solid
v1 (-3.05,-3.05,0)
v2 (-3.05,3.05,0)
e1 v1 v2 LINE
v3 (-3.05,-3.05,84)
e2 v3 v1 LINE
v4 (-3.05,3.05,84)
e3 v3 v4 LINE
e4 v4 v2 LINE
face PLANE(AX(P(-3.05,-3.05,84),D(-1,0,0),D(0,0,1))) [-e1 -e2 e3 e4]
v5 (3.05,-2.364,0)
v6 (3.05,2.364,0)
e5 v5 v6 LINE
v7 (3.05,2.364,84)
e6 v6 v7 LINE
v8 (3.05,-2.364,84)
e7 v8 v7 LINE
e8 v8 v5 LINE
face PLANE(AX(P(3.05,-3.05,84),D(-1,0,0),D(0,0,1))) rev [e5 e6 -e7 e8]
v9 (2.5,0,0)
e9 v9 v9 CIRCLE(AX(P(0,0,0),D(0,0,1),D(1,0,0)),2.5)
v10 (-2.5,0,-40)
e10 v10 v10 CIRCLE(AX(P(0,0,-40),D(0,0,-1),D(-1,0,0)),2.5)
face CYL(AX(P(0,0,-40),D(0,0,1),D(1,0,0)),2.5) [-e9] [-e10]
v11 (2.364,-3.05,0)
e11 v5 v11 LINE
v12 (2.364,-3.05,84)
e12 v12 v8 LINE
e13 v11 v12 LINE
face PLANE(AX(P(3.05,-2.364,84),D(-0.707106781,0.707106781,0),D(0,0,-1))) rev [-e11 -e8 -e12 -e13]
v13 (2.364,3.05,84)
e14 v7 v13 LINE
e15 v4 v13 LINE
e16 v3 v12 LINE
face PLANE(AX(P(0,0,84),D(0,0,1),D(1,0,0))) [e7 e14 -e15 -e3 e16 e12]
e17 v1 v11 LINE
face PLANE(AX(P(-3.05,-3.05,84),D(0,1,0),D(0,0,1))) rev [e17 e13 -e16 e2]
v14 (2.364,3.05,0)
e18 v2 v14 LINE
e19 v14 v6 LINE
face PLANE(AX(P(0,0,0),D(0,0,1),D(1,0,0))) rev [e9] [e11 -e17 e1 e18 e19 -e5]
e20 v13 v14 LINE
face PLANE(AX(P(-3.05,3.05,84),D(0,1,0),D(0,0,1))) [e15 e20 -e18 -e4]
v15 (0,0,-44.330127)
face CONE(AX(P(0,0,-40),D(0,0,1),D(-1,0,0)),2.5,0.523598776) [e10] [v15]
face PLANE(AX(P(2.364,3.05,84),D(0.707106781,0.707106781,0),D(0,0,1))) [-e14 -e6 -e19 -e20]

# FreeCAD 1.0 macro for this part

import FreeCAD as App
import Part
import Sketcher
from FreeCAD import Vector
Q = App.Units.Quantity


def edges_at(feature, points):
    """Names of the edges that pass closest to the given points."""
    edges = feature.Shape.Edges
    near = lambda p: min(range(len(edges)), key=lambda i: edges[i].distToShape(Part.Vertex(*p))[0])
    return sorted({f"Edge{near(p) + 1}" for p in points})

doc = App.newDocument("Part")
body = doc.addObject("PartDesign::Body", "Body")

# Sketch on XY plane
sketch1 = body.newObject("Sketcher::SketchObject", "Sketch")
sketch1.AttachmentSupport = (doc.getObject("XY_Plane"), [""])
sketch1.MapMode = "FlatFace"
sketch1.addGeometry([
    Part.LineSegment(Vector(-3.05, 3.05, 0), Vector(-3.05, -3.05, 0)),
    Part.LineSegment(Vector(-3.05, -3.05, 0), Vector(3.05, -3.05, 0)),
    Part.LineSegment(Vector(3.05, -3.05, 0), Vector(3.05, 3.05, 0)),
    Part.LineSegment(Vector(3.05, 3.05, 0), Vector(-3.05, 3.05, 0)),
], False)
sketch1.addConstraint([
    Sketcher.Constraint("Coincident", 0, 2, 1, 1),
    Sketcher.Constraint("Coincident", 1, 2, 2, 1),
    Sketcher.Constraint("Coincident", 2, 2, 3, 1),
    Sketcher.Constraint("Coincident", 3, 2, 0, 1),
    Sketcher.Constraint("Vertical", 0),
    Sketcher.Constraint("Horizontal", 1),
    Sketcher.Constraint("Vertical", 2),
    Sketcher.Constraint("Horizontal", 3),
    Sketcher.Constraint("Symmetric", 0, 2, 2, 2, -1, 1),
    Sketcher.Constraint("Equal", 3, 0),
    Sketcher.Constraint("DistanceX", 1, 1, 1, 2, Q("6.1 mm")),
])
pad1 = body.newObject("PartDesign::Pad", "Pad")
pad1.Profile = sketch1
pad1.Length = 84

# Sketch on XY plane
sketch2 = body.newObject("Sketcher::SketchObject", "Sketch001")
sketch2.AttachmentSupport = (doc.getObject("XY_Plane"), [""])
sketch2.MapMode = "FlatFace"
sketch2.addGeometry(Part.Circle(Vector(0, 0, 0), Vector(0, 0, 1), 2.5), False)
sketch2.addConstraint([
    Sketcher.Constraint("Coincident", 0, 3, -1, 1),
    Sketcher.Constraint("Diameter", 0, Q("5 mm")),
])
pad2 = body.newObject("PartDesign::Pad", "Pad001")
pad2.Profile = sketch2
pad2.Length = 40
pad2.Reversed = True

# Sketch on YZ plane
sketch3 = body.newObject("Sketcher::SketchObject", "Sketch002")
sketch3.AttachmentSupport = (doc.getObject("YZ_Plane"), [""])
sketch3.MapMode = "FlatFace"
sketch3.addGeometry([
    Part.LineSegment(Vector(0, -40, 0), Vector(-2.5, -40, 0)),
    Part.LineSegment(Vector(-2.5, -40, 0), Vector(0, -44.330127, 0)),
    Part.LineSegment(Vector(0, -44.330127, 0), Vector(0, -40, 0)),
], False)
sketch3.addConstraint([
    Sketcher.Constraint("Coincident", 0, 2, 1, 1),
    Sketcher.Constraint("Coincident", 1, 2, 2, 1),
    Sketcher.Constraint("Coincident", 2, 2, 0, 1),
    Sketcher.Constraint("Horizontal", 0),
    Sketcher.Constraint("Vertical", 2),
    Sketcher.Constraint("PointOnObject", 1, 2, -2),
    Sketcher.Constraint("Angle", 1, Q("-60 deg")),
    Sketcher.Constraint("Distance", 1, Q("5 mm")),
    Sketcher.Constraint("DistanceY", 0, 2, -1, 1, Q("40 mm")),
])
revolution = body.newObject("PartDesign::Revolution", "Revolution")
revolution.Profile = sketch3
revolution.ReferenceAxis = (sketch3, ["V_Axis"])
revolution.Angle = 360
doc.recompute()

chamfer = body.newObject("PartDesign::Chamfer", "Chamfer")
chamfer.Base = (revolution, edges_at(revolution, [(3.05, 3.05, 42), (3.05, -3.05, 42)]))
chamfer.Size = 0.686

doc.recompute()
